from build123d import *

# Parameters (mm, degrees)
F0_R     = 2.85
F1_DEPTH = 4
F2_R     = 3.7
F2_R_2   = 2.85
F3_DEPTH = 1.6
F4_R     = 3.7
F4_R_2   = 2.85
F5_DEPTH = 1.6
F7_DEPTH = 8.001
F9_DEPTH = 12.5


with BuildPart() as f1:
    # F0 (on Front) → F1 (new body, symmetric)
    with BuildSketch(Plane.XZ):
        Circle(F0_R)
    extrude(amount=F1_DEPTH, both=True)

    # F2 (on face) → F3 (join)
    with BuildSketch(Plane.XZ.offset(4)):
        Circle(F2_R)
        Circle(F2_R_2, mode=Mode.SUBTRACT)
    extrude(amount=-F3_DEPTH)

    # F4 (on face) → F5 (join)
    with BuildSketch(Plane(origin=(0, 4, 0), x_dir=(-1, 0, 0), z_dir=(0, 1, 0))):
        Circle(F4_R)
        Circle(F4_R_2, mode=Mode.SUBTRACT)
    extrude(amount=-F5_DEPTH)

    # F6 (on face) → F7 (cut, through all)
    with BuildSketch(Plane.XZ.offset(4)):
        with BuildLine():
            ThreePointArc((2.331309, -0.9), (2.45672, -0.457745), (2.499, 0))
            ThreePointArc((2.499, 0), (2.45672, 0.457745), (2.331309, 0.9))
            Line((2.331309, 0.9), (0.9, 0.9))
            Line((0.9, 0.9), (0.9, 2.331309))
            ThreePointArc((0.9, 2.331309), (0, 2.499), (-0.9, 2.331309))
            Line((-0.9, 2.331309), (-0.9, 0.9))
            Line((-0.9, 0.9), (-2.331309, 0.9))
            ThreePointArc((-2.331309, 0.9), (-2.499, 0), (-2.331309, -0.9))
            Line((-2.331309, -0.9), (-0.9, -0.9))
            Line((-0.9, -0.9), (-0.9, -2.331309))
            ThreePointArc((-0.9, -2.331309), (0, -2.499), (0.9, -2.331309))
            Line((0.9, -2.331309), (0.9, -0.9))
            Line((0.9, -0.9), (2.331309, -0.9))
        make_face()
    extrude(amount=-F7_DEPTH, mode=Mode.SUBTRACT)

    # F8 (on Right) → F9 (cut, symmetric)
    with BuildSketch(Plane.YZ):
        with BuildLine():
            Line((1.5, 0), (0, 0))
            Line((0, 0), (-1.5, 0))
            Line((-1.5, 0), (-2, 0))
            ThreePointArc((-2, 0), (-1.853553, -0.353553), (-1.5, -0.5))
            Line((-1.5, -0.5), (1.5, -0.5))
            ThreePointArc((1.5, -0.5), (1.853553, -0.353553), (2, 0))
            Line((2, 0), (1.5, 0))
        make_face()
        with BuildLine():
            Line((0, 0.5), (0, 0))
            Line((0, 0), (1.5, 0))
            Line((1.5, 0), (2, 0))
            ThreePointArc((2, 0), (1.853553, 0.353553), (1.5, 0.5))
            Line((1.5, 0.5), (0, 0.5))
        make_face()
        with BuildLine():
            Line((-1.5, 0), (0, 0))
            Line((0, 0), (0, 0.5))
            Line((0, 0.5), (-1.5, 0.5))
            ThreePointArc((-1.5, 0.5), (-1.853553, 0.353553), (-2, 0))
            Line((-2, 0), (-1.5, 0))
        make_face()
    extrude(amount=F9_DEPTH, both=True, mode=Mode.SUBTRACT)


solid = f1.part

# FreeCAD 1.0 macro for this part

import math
import FreeCAD as App
import Part
import Sketcher

doc = App.newDocument("Part")
body = doc.addObject("PartDesign::Body", "Body")

sketch1 = doc.addObject("Sketcher::SketchObject", "Sketch")
body.addObject(sketch1)
sketch1.AttachmentSupport = (doc.XZ_Plane, [""])
sketch1.MapMode = "FlatFace"
sketch1.addGeometry(Part.Circle(App.Vector(0, 0, 0), App.Vector(0, 0, 1), 2.85), False)
sketch1.addConstraint([
    Sketcher.Constraint("Coincident", 0, 3, -1, 1),
    Sketcher.Constraint("Diameter", 0, 5.7),
])
pad1 = doc.addObject("PartDesign::Pad", "Pad")
body.addObject(pad1)
pad1.Profile = sketch1
pad1.Length = 8
pad1.Midplane = True

sketch2 = doc.addObject("Sketcher::SketchObject", "Sketch001")
body.addObject(sketch2)
sketch2.AttachmentSupport = (doc.XZ_Plane, [""])
sketch2.MapMode = "FlatFace"
sketch2.AttachmentOffset = App.Placement(App.Vector(0, 0, 4), App.Rotation())
sketch2.addGeometry([
    Part.Circle(App.Vector(0, 0, 0), App.Vector(0, 0, 1), 3.7),
    Part.Circle(App.Vector(0, 0, 0), App.Vector(0, 0, 1), 2.85),
], False)
sketch2.addConstraint([
    Sketcher.Constraint("Coincident", 0, 3, -1, 1),
    Sketcher.Constraint("Coincident", 1, 3, -1, 1),
    Sketcher.Constraint("Diameter", 0, 7.4),
    Sketcher.Constraint("Diameter", 1, 5.7),
])
pad2 = doc.addObject("PartDesign::Pad", "Pad001")
body.addObject(pad2)
pad2.Profile = sketch2
pad2.Length = 1.6
pad2.Reversed = True

sketch3 = doc.addObject("Sketcher::SketchObject", "Sketch002")
body.addObject(sketch3)
sketch3.AttachmentSupport = (doc.XZ_Plane, [""])
sketch3.MapMode = "FlatFace"
sketch3.AttachmentOffset = App.Placement(App.Vector(0, 0, -4), App.Rotation())
sketch3.addGeometry([
    Part.Circle(App.Vector(0, 0, 0), App.Vector(0, 0, 1), 3.7),
    Part.Circle(App.Vector(0, 0, 0), App.Vector(0, 0, 1), 2.85),
], False)
sketch3.addConstraint([
    Sketcher.Constraint("Coincident", 0, 3, -1, 1),
    Sketcher.Constraint("Coincident", 1, 3, -1, 1),
    Sketcher.Constraint("Diameter", 0, 7.4),
    Sketcher.Constraint("Diameter", 1, 5.7),
])
pad3 = doc.addObject("PartDesign::Pad", "Pad002")
body.addObject(pad3)
pad3.Profile = sketch3
pad3.Length = 1.6

sketch4 = doc.addObject("Sketcher::SketchObject", "Sketch003")
body.addObject(sketch4)
sketch4.AttachmentSupport = (doc.XZ_Plane, [""])
sketch4.MapMode = "FlatFace"
sketch4.AttachmentOffset = App.Placement(App.Vector(0, 0, 4), App.Rotation())
sketch4.addGeometry([
    Part.ArcOfCircle(Part.Circle(App.Vector(0.000027, -0.000005, 0), App.Vector(0, 0, 1), 2.498973), math.radians(-21.109149), math.radians(0.000123)),
    Part.ArcOfCircle(Part.Circle(App.Vector(0.000027, 0.000005, 0), App.Vector(0, 0, 1), 2.498973), math.radians(-0.000123), math.radians(21.109149)),
    Part.LineSegment(App.Vector(2.331309, 0.9, 0), App.Vector(0.9, 0.9, 0)),
    Part.LineSegment(App.Vector(0.9, 0.9, 0), App.Vector(0.9, 2.331309, 0)),
    Part.ArcOfCircle(Part.Circle(App.Vector(0, -0.000002, 0), App.Vector(0, 0, 1), 2.499002), math.radians(68.890974), math.radians(111.109026)),
    Part.LineSegment(App.Vector(-0.9, 2.331309, 0), App.Vector(-0.9, 0.9, 0)),
    Part.LineSegment(App.Vector(-0.9, 0.9, 0), App.Vector(-2.331309, 0.9, 0)),
    Part.ArcOfCircle(Part.Circle(App.Vector(0.000002, 0, 0), App.Vector(0, 0, 1), 2.499002), math.radians(158.890974), math.radians(201.109026)),
    Part.LineSegment(App.Vector(-2.331309, -0.9, 0), App.Vector(-0.9, -0.9, 0)),
    Part.LineSegment(App.Vector(-0.9, -0.9, 0), App.Vector(-0.9, -2.331309, 0)),
    Part.ArcOfCircle(Part.Circle(App.Vector(0, 0.000002, 0), App.Vector(0, 0, 1), 2.499002), math.radians(-111.109026), math.radians(-68.890974)),
    Part.LineSegment(App.Vector(0.9, -2.331309, 0), App.Vector(0.9, -0.9, 0)),
    Part.LineSegment(App.Vector(0.9, -0.9, 0), App.Vector(2.331309, -0.9, 0)),
], False)
sketch4.addConstraint([
    Sketcher.Constraint("Coincident", 0, 2, 1, 1),
    Sketcher.Constraint("Coincident", 1, 2, 2, 1),
    Sketcher.Constraint("Coincident", 2, 2, 3, 1),
    Sketcher.Constraint("Coincident", 3, 2, 4, 1),
    Sketcher.Constraint("Coincident", 4, 2, 5, 1),
    Sketcher.Constraint("Coincident", 5, 2, 6, 1),
    Sketcher.Constraint("Coincident", 6, 2, 7, 1),
    Sketcher.Constraint("Coincident", 7, 2, 8, 1),
    Sketcher.Constraint("Coincident", 8, 2, 9, 1),
    Sketcher.Constraint("Coincident", 9, 2, 10, 1),
    Sketcher.Constraint("Coincident", 10, 2, 11, 1),
    Sketcher.Constraint("Coincident", 11, 2, 12, 1),
    Sketcher.Constraint("Coincident", 12, 2, 0, 1),
    Sketcher.Constraint("Horizontal", 2),
    Sketcher.Constraint("Vertical", 3),
    Sketcher.Constraint("Vertical", 5),
    Sketcher.Constraint("Horizontal", 6),
    Sketcher.Constraint("Horizontal", 8),
    Sketcher.Constraint("Vertical", 9),
    Sketcher.Constraint("Vertical", 11),
    Sketcher.Constraint("Horizontal", 12),
    Sketcher.Constraint("Coincident", 4, 3, -1, 1),
    Sketcher.Constraint("Coincident", 7, 3, -1, 1),
    Sketcher.Constraint("Coincident", 10, 3, -1, 1),
    Sketcher.Constraint("Equal", 0, 1),
    Sketcher.Constraint("Equal", 4, 7),
    Sketcher.Constraint("Equal", 7, 10),
    Sketcher.Constraint("Symmetric", 1, 2, 7, 2, -1, 1),
    Sketcher.Constraint("Symmetric", 5, 2, 11, 2, -1, 1),
    Sketcher.Constraint("Symmetric", 2, 2, 5, 2, -2),
    Sketcher.Constraint("PointOnObject", 0, 2, -1),
    Sketcher.Constraint("Horizontal", 9, 2, 10, 2),
    Sketcher.Constraint("Vertical", 1, 2, 12, 2),
    Sketcher.Constraint("Equal", 12, 3),
    Sketcher.Constraint("Radius", 4, 2.499002),
    Sketcher.Constraint("DistanceY", -1, 1, 1, 2, 0.9),
    Sketcher.Constraint("DistanceX", -1, 1, 0, 2, 2.499),
    Sketcher.Constraint("Radius", 0, 2.498973),
])
pocket1 = doc.addObject("PartDesign::Pocket", "Pocket")
body.addObject(pocket1)
pocket1.Profile = sketch4
pocket1.Type = "ThroughAll"

sketch5 = doc.addObject("Sketcher::SketchObject", "Sketch004")
body.addObject(sketch5)
sketch5.AttachmentSupport = (doc.YZ_Plane, [""])
sketch5.MapMode = "FlatFace"
sketch5.addGeometry([
    Part.ArcOfCircle(Part.Circle(App.Vector(-1.499999, 0.000001, 0), App.Vector(0, 0, 1), 0.500001), math.radians(-179.999847), math.radians(-90.000153)),
    Part.LineSegment(App.Vector(-1.5, -0.5, 0), App.Vector(1.5, -0.5, 0)),
    Part.ArcOfCircle(Part.Circle(App.Vector(1.499999, 0.000001, 0), App.Vector(0, 0, 1), 0.500001), math.radians(-89.999847), math.radians(-0.000153)),
    Part.ArcOfCircle(Part.Circle(App.Vector(1.499999, -0.000001, 0), App.Vector(0, 0, 1), 0.500001), math.radians(0.000153), math.radians(89.999847)),
    Part.LineSegment(App.Vector(1.5, 0.5, 0), App.Vector(-1.5, 0.5, 0)),
    Part.ArcOfCircle(Part.Circle(App.Vector(-1.499999, -0.000001, 0), App.Vector(0, 0, 1), 0.500001), math.radians(90.000153), math.radians(179.999847)),
], False)
sketch5.addConstraint([
    Sketcher.Constraint("Coincident", 0, 2, 1, 1),
    Sketcher.Constraint("Coincident", 1, 2, 2, 1),
    Sketcher.Constraint("Coincident", 2, 2, 3, 1),
    Sketcher.Constraint("Coincident", 3, 2, 4, 1),
    Sketcher.Constraint("Coincident", 4, 2, 5, 1),
    Sketcher.Constraint("Coincident", 5, 2, 0, 1),
    Sketcher.Constraint("Horizontal", 1),
    Sketcher.Constraint("Horizontal", 4),
    Sketcher.Constraint("Coincident", 3, 3, 2, 3),
    Sketcher.Constraint("Coincident", 5, 3, 0, 3),
    Sketcher.Constraint("Symmetric", 0, 3, 2, 3, -1, 1),
    Sketcher.Constraint("PointOnObject", 2, 2, -1),
    Sketcher.Constraint("PointOnObject", 5, 2, -1),
    Sketcher.Constraint("Vertical", 5, 3, 0, 2),
    Sketcher.Constraint("Vertical", 3, 3, 1, 2),
    Sketcher.Constraint("Vertical", 1, 2, 3, 2),
    Sketcher.Constraint("Vertical", 0, 2, 4, 2),
    Sketcher.Constraint("Radius", 0, 0.500001),
    Sketcher.Constraint("DistanceX", 1, 1, 1, 2, 3.0),
])
pocket2 = doc.addObject("PartDesign::Pocket", "Pocket001")
body.addObject(pocket2)
pocket2.Profile = sketch5
pocket2.Length = 25
pocket2.Midplane = True

doc.recompute()
